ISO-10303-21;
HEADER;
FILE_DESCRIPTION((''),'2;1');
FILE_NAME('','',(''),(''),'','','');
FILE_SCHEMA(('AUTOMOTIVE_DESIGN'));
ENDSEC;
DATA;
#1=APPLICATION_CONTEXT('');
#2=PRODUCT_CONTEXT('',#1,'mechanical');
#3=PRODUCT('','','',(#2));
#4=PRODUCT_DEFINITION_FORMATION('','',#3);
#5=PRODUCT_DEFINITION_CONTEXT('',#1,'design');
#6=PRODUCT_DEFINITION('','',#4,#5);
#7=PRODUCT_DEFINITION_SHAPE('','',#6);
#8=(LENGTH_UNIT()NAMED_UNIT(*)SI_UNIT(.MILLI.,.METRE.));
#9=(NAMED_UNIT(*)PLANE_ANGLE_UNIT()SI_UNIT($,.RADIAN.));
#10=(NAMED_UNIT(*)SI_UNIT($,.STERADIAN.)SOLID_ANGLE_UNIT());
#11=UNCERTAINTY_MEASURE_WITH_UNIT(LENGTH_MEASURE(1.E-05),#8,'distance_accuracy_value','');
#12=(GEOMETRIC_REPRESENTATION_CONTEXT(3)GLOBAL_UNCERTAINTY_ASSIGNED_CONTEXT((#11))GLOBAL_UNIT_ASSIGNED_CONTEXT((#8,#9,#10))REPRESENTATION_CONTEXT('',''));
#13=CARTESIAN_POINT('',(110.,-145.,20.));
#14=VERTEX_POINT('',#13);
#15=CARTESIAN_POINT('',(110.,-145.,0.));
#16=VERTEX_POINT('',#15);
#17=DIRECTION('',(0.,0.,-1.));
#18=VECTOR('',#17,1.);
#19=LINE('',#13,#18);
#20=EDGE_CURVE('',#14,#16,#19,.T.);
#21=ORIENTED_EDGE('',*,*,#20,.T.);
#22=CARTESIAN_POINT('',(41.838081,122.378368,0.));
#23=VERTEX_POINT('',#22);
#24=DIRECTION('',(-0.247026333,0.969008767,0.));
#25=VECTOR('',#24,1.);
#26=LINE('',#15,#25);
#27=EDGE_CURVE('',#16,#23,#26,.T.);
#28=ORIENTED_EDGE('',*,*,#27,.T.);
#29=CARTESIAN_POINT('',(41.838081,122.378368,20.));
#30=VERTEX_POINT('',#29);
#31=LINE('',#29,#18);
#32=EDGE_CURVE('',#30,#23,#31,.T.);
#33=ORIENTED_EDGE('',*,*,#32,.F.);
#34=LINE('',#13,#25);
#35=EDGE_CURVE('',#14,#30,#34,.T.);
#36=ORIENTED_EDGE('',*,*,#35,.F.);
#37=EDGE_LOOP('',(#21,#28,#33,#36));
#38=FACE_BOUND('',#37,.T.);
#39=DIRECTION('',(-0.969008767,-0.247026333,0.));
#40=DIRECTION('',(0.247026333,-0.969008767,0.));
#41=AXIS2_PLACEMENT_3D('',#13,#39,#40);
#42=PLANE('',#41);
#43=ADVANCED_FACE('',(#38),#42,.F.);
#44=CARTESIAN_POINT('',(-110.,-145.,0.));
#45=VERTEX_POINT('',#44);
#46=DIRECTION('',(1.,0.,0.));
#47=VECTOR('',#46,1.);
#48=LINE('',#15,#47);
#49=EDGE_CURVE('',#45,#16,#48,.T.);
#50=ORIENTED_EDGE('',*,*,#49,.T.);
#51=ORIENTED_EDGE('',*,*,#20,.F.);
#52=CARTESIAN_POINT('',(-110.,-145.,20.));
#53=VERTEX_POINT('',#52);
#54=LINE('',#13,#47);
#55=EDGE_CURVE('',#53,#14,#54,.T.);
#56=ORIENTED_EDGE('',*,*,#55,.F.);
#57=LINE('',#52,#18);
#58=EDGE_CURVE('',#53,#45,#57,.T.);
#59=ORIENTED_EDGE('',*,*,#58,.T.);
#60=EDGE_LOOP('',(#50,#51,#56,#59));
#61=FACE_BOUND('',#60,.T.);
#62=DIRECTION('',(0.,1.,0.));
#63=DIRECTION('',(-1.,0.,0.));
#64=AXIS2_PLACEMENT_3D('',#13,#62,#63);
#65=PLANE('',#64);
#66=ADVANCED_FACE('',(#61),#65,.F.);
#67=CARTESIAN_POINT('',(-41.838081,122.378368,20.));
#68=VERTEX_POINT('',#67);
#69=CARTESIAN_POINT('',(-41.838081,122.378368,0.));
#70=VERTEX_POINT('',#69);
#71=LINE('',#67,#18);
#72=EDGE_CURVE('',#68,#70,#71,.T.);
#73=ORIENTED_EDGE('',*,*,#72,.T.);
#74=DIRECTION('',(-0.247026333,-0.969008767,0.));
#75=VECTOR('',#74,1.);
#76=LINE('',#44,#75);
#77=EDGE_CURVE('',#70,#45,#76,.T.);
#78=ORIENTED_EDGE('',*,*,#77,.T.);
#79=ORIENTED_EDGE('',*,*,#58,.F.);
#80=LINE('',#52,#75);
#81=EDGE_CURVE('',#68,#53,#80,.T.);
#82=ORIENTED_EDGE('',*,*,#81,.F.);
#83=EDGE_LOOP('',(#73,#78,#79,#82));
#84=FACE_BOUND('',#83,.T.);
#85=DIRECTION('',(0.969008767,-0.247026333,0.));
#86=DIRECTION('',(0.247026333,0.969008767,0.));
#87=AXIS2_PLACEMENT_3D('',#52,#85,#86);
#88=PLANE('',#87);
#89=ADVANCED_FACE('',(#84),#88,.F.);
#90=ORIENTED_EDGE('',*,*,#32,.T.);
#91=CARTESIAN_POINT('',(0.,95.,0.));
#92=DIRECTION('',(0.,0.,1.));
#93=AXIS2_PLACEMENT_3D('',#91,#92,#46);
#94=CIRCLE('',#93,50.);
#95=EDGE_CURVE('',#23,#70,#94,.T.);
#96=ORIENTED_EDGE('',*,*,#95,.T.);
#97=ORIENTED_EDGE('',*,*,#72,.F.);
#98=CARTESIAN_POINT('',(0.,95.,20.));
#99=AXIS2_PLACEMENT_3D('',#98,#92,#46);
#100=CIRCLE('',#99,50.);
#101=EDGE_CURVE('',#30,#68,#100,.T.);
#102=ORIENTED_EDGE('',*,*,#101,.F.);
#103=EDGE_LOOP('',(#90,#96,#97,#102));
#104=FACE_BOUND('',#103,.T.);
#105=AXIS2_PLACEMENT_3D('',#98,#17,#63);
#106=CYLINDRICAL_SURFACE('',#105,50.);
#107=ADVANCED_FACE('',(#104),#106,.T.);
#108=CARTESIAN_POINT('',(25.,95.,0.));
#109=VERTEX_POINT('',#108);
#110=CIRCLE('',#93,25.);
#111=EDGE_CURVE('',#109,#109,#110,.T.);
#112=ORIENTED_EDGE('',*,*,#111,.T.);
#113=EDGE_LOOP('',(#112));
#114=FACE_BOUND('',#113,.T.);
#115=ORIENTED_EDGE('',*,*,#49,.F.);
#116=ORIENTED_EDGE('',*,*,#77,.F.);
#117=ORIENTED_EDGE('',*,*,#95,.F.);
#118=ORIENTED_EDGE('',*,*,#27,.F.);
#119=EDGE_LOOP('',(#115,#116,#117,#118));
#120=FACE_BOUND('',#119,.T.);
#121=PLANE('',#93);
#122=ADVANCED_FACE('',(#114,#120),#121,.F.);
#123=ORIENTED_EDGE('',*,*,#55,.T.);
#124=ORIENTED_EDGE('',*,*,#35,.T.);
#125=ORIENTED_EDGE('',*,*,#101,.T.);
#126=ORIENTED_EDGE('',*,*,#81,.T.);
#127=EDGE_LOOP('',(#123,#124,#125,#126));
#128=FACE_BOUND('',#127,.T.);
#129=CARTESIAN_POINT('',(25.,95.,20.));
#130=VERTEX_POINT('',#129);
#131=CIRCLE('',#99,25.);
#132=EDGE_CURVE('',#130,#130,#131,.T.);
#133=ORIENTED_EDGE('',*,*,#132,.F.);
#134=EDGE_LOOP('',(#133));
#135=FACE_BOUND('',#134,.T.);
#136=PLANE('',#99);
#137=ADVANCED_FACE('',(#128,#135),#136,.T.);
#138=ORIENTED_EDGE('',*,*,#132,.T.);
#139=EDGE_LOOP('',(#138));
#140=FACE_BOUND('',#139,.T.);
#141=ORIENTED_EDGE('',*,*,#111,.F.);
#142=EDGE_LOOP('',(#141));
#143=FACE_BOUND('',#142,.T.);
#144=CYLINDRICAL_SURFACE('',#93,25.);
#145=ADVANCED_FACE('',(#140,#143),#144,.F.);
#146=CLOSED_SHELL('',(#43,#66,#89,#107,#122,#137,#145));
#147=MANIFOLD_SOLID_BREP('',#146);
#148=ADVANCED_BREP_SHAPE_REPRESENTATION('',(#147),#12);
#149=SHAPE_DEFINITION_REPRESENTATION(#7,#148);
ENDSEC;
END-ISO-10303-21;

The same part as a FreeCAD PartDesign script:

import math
import FreeCAD as App
import Part
import Sketcher
from FreeCAD import Vector
Q = App.Units.Quantity

doc = App.newDocument("Part")
body = doc.addObject("PartDesign::Body", "Body")

# Sketch on XY plane
sketch1 = doc.addObject("Sketcher::SketchObject", "Sketch")
body.addObject(sketch1)
sketch1.AttachmentSupport = (doc.XY_Plane, [""])
sketch1.MapMode = "FlatFace"
sketch1.addGeometry(Part.LineSegment(Vector(-110, -145, 0), Vector(110, -145, 0)), False)
sketch1.addGeometry(Part.LineSegment(Vector(110, -145, 0), Vector(41.838081, 122.378368, 0)), False)
sketch1.addGeometry(Part.ArcOfCircle(Part.Circle(Vector(0, 95, 0), Vector(0, 0, 1), 50), math.radians(33.200283), math.radians(146.799717)), False)
sketch1.addGeometry(Part.LineSegment(Vector(-41.838081, 122.378368, 0), Vector(-110, -145, 0)), False)
sketch1.addConstraint(Sketcher.Constraint("Coincident", 0, 2, 1, 1))
sketch1.addConstraint(Sketcher.Constraint("Coincident", 1, 2, 2, 1))
sketch1.addConstraint(Sketcher.Constraint("Coincident", 2, 2, 3, 1))
sketch1.addConstraint(Sketcher.Constraint("Coincident", 3, 2, 0, 1))
sketch1.addConstraint(Sketcher.Constraint("Horizontal", 0))
sketch1.addConstraint(Sketcher.Constraint("Symmetric", 1, 2, 2, 2, -2))
sketch1.addConstraint(Sketcher.Constraint("Equal", 1, 3))
sketch1.addConstraint(Sketcher.Constraint("Radius", 2, Q("50 mm")))
sketch1.addConstraint(Sketcher.Constraint("DistanceX", 0, 1, 0, 2, Q("220 mm")))
sketch1.addConstraint(Sketcher.Constraint("DistanceY", -1, 1, 2, 3, Q("95 mm")))
sketch1.addConstraint(Sketcher.Constraint("DistanceY", 0, 2, -1, 1, Q("145 mm")))
sketch1.addConstraint(Sketcher.Constraint("Distance", 1, Q("275.929771 mm")))
pad1 = doc.addObject("PartDesign::Pad", "Pad")
body.addObject(pad1)
pad1.Profile = sketch1
pad1.Length = 20

# Sketch on XY plane
sketch2 = doc.addObject("Sketcher::SketchObject", "Sketch001")
body.addObject(sketch2)
sketch2.AttachmentSupport = (doc.XY_Plane, [""])
sketch2.MapMode = "FlatFace"
sketch2.AttachmentOffset = App.Placement(Vector(0, 0, 20), App.Rotation())
sketch2.addGeometry(Part.Circle(Vector(0, 95, 0), Vector(0, 0, 1), 25), False)
sketch2.addConstraint(Sketcher.Constraint("PointOnObject", 0, 3, -2))
sketch2.addConstraint(Sketcher.Constraint("Diameter", 0, Q("50 mm")))
sketch2.addConstraint(Sketcher.Constraint("DistanceY", -1, 1, 0, 3, Q("95 mm")))
pocket1 = doc.addObject("PartDesign::Pocket", "Pocket")
body.addObject(pocket1)
pocket1.Profile = sketch2
pocket1.Length = 20

doc.recompute()
